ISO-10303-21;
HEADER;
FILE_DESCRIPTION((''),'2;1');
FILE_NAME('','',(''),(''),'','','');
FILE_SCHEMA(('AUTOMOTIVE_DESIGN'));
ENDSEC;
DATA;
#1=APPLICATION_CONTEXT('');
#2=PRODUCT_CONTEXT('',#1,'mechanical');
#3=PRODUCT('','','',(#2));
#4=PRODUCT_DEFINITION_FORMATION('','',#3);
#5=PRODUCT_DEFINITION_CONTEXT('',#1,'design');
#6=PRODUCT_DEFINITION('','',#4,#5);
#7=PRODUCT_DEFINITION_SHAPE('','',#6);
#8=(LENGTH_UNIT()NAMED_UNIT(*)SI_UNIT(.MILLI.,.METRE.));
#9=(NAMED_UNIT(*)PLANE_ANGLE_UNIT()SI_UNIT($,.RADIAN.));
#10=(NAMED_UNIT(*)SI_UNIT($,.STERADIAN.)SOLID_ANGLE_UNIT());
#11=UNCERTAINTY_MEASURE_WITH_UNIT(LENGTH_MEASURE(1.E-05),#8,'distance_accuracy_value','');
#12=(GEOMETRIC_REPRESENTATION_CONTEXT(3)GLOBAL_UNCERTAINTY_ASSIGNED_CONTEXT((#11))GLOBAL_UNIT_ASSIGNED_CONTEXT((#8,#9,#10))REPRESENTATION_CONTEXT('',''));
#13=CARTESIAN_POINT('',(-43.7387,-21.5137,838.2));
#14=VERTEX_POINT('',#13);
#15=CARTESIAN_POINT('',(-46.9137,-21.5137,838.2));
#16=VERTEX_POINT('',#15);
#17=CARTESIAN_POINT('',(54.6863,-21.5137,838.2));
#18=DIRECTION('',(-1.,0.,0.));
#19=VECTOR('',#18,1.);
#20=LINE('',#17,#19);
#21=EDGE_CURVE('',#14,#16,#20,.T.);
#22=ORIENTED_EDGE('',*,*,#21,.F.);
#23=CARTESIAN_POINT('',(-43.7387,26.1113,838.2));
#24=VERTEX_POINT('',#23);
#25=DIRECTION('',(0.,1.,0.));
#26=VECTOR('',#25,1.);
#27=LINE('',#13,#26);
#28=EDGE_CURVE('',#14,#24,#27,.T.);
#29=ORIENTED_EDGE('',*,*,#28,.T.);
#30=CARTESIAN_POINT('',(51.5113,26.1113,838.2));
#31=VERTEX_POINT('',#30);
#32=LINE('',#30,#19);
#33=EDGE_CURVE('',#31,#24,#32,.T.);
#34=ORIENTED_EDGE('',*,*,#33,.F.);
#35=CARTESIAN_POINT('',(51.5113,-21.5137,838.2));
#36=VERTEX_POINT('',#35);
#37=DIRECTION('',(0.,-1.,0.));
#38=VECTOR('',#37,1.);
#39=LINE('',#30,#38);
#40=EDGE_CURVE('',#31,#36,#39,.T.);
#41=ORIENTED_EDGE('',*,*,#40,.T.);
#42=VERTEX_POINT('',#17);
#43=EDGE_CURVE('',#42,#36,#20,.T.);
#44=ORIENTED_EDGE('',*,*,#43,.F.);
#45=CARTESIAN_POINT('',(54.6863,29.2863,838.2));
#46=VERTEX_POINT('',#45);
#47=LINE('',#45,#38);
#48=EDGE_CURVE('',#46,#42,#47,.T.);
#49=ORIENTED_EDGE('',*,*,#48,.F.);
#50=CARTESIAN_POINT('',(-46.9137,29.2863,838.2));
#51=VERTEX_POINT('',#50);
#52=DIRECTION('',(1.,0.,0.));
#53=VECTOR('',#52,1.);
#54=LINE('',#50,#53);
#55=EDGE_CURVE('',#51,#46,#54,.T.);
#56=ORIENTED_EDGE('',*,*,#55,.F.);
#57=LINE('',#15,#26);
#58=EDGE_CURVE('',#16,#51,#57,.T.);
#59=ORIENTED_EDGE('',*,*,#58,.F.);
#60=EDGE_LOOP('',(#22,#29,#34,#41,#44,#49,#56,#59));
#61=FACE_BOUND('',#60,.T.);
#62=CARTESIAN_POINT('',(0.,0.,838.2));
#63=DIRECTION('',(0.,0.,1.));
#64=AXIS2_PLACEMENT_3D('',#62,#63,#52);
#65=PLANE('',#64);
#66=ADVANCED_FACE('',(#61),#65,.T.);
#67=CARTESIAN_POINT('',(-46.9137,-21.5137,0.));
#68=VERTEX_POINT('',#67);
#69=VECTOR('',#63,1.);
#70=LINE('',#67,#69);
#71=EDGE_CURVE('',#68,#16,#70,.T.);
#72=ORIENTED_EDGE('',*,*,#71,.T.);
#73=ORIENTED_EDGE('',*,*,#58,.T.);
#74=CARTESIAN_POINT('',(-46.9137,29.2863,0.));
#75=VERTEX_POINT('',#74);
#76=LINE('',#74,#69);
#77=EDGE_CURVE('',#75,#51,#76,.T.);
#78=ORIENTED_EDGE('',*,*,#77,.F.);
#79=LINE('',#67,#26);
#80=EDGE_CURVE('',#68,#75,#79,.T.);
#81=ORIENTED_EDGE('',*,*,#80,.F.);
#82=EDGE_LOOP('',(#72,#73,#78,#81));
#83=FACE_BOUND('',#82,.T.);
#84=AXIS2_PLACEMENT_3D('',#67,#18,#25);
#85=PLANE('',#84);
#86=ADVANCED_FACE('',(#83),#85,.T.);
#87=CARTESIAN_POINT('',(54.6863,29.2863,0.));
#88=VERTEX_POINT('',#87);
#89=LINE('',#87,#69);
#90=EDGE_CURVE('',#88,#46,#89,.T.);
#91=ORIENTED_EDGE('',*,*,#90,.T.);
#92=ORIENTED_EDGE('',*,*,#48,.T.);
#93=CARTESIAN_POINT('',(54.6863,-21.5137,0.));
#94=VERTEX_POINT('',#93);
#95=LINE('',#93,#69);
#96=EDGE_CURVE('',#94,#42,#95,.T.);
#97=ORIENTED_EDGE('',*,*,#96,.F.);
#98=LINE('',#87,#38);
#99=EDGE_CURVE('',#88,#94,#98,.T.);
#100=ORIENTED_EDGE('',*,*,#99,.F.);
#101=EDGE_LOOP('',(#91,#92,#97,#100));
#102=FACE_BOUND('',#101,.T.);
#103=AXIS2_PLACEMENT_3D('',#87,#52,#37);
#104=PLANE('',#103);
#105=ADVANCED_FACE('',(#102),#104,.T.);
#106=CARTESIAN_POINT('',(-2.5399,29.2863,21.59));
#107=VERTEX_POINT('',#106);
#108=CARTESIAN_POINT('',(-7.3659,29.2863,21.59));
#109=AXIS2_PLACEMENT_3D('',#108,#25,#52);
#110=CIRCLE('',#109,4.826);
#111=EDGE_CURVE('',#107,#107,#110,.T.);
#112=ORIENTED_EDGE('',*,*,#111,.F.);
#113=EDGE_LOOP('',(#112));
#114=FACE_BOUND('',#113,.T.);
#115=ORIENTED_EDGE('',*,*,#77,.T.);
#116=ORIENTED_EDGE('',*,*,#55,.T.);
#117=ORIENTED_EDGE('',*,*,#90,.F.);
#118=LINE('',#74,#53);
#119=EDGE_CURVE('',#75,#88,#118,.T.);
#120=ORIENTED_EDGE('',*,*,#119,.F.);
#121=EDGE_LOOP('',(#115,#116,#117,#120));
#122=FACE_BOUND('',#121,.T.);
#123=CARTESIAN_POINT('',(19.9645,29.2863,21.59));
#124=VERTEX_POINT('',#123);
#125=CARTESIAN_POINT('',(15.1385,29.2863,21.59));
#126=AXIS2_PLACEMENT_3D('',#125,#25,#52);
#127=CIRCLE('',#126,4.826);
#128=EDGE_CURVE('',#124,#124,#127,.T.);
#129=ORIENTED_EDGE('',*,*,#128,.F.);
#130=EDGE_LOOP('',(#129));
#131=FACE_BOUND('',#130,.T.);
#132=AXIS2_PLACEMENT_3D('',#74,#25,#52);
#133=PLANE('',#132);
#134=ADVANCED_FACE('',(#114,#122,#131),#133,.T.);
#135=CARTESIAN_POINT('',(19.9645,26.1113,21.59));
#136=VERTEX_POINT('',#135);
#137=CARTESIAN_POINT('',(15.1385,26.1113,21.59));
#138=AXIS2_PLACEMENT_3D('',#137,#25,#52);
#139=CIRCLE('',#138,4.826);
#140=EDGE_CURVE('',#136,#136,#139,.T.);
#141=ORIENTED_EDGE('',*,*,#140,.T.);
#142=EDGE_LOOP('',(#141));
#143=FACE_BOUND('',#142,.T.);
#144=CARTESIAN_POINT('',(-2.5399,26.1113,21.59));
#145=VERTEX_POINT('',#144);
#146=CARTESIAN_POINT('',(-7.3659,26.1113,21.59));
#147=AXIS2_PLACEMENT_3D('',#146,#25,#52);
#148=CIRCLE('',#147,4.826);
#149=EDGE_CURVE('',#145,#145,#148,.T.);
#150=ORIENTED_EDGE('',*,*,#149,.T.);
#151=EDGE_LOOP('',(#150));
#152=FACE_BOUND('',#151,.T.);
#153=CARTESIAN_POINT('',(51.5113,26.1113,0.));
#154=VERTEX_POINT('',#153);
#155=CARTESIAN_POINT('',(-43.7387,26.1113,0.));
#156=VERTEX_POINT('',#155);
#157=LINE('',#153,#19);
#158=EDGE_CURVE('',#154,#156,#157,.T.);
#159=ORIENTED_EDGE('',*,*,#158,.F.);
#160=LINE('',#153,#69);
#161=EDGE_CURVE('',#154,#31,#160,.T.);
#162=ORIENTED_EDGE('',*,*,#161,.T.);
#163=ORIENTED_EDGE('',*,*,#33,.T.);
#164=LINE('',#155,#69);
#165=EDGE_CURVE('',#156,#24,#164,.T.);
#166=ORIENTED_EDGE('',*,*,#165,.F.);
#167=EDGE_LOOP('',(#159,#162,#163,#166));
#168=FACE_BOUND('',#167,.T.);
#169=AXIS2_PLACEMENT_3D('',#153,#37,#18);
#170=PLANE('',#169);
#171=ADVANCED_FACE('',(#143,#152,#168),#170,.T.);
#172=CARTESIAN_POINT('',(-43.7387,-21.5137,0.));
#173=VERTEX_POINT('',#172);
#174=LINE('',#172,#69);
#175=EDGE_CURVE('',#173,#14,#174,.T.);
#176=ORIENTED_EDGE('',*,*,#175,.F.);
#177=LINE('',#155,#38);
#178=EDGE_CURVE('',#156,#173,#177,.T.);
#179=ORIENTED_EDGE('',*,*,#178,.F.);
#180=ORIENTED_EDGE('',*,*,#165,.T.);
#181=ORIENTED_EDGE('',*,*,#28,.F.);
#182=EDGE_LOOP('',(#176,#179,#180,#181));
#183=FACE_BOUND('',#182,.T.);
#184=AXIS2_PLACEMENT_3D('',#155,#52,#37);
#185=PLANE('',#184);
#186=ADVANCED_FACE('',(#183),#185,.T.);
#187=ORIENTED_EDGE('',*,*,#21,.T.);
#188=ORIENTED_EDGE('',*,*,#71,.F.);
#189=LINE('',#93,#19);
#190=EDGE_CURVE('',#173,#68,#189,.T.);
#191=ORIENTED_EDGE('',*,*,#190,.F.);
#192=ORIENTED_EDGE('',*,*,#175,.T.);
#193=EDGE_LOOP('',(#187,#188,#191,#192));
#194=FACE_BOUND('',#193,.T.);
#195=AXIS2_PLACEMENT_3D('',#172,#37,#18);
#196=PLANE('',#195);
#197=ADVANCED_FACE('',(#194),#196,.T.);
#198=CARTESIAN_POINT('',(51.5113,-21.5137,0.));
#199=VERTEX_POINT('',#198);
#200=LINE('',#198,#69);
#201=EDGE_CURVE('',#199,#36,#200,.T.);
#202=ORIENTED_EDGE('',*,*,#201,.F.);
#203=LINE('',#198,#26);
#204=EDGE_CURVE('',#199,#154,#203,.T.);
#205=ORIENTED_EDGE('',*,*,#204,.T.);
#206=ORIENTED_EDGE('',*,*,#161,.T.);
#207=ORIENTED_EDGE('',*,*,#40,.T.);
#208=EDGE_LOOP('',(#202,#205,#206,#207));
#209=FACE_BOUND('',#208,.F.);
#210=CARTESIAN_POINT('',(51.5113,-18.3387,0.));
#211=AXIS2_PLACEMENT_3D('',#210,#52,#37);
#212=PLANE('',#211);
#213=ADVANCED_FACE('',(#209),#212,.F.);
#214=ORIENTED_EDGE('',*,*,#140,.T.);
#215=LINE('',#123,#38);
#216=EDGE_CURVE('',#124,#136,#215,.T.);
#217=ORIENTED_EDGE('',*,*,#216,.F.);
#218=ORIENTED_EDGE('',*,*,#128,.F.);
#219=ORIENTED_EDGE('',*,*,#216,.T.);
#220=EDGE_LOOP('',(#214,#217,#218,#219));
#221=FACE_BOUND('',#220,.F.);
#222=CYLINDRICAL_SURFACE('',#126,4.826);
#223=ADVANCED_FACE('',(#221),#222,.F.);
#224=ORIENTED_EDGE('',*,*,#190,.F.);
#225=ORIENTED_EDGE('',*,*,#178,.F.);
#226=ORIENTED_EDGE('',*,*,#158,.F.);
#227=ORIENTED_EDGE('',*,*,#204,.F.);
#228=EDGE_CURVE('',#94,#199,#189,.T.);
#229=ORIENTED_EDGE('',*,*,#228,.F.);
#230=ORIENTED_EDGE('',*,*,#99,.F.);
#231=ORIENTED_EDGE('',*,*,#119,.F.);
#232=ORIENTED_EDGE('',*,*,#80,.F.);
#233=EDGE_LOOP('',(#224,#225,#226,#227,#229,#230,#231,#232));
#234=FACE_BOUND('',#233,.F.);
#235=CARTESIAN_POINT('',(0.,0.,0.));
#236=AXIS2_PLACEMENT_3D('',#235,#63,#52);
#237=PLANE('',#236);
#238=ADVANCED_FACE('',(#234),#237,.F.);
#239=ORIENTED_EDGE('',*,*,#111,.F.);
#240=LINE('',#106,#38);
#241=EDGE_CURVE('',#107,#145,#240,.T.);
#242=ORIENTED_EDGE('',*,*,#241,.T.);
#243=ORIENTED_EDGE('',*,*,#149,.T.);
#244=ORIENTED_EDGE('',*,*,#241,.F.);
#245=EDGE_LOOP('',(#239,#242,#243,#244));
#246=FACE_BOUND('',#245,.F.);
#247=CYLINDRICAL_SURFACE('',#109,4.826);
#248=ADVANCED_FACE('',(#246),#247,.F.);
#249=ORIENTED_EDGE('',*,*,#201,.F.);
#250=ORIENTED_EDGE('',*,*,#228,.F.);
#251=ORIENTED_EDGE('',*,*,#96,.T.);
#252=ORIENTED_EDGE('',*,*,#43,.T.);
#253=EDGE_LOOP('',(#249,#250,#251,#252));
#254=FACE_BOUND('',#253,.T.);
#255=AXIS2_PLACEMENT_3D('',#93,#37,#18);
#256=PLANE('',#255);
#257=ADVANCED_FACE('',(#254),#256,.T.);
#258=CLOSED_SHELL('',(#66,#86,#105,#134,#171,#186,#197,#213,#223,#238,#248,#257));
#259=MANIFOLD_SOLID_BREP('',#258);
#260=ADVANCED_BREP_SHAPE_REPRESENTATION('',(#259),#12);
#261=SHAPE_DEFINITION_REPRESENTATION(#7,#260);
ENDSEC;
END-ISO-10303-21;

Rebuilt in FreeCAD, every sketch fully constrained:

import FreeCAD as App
import Part
import Sketcher

V = App.Vector
Q = App.Units.Quantity

doc = App.newDocument("Part")
body = doc.addObject("PartDesign::Body", "Body")

sketch1 = doc.addObject("Sketcher::SketchObject", "Sketch")
body.addObject(sketch1)
sketch1.AttachmentSupport = (doc.XY_Plane, [""])
sketch1.MapMode = "FlatFace"
sketch1.addGeometry(Part.LineSegment(V(54.7, 29.3, 0), V(-46.9, 29.3, 0)), False)
sketch1.addGeometry(Part.LineSegment(V(-46.9, 29.3, 0), V(-46.9, -21.5, 0)), False)
sketch1.addGeometry(Part.LineSegment(V(-46.9, -21.5, 0), V(-43.7, -21.5, 0)), False)
sketch1.addGeometry(Part.LineSegment(V(-43.7, -21.5, 0), V(-43.7, 26.1, 0)), False)
sketch1.addGeometry(Part.LineSegment(V(-43.7, 26.1, 0), V(51.5, 26.1, 0)), False)
sketch1.addGeometry(Part.LineSegment(V(51.5, 26.1, 0), V(51.5, -21.5, 0)), False)
sketch1.addGeometry(Part.LineSegment(V(51.5, -21.5, 0), V(54.7, -21.5, 0)), False)
sketch1.addGeometry(Part.LineSegment(V(54.7, -21.5, 0), V(54.7, 29.3, 0)), False)
sketch1.addConstraint(Sketcher.Constraint("Coincident", 0, 2, 1, 1))
sketch1.addConstraint(Sketcher.Constraint("Coincident", 1, 2, 2, 1))
sketch1.addConstraint(Sketcher.Constraint("Coincident", 2, 2, 3, 1))
sketch1.addConstraint(Sketcher.Constraint("Coincident", 3, 2, 4, 1))
sketch1.addConstraint(Sketcher.Constraint("Coincident", 4, 2, 5, 1))
sketch1.addConstraint(Sketcher.Constraint("Coincident", 5, 2, 6, 1))
sketch1.addConstraint(Sketcher.Constraint("Coincident", 6, 2, 7, 1))
sketch1.addConstraint(Sketcher.Constraint("Coincident", 7, 2, 0, 1))
sketch1.addConstraint(Sketcher.Constraint("Horizontal", 0))
sketch1.addConstraint(Sketcher.Constraint("Vertical", 1))
sketch1.addConstraint(Sketcher.Constraint("Horizontal", 2))
sketch1.addConstraint(Sketcher.Constraint("Vertical", 3))
sketch1.addConstraint(Sketcher.Constraint("Horizontal", 4))
sketch1.addConstraint(Sketcher.Constraint("Vertical", 5))
sketch1.addConstraint(Sketcher.Constraint("Horizontal", 6))
sketch1.addConstraint(Sketcher.Constraint("Vertical", 7))
sketch1.addConstraint(Sketcher.Constraint("Horizontal", 2, 2, 5, 2))
sketch1.addConstraint(Sketcher.Constraint("Equal", 2, 6))
sketch1.addConstraint(Sketcher.Constraint("DistanceX", 0, 2, 0, 1, Q("4 in")))
sketch1.addConstraint(Sketcher.Constraint("DistanceY", 1, 2, 1, 1, Q("2 in")))
sketch1.addConstraint(Sketcher.Constraint("DistanceX", 2, 1, 2, 2, Q("0.125 in")))
sketch1.addConstraint(Sketcher.Constraint("DistanceY", 3, 2, 0, 2, Q("0.125 in")))
sketch1.addConstraint(Sketcher.Constraint("DistanceX", 0, 2, -1, 1, Q("1.847 in")))
sketch1.addConstraint(Sketcher.Constraint("DistanceY", -1, 1, 0, 2, Q("1.153 in")))
pad1 = doc.addObject("PartDesign::Pad", "Pad")
body.addObject(pad1)
pad1.Profile = sketch1
pad1.Length = Q("33 in")

sketch2 = doc.addObject("Sketcher::SketchObject", "Sketch001")
body.addObject(sketch2)
sketch2.AttachmentSupport = (doc.XZ_Plane, [""])
sketch2.MapMode = "FlatFace"
sketch2.AttachmentOffset = App.Placement(V(0, 0, -1.1530039 * 25.4), App.Rotation())
sketch2.addGeometry(Part.Circle(V(15.1, 21.6, 0), V(0, 0, 1), 4.8), False)
sketch2.addGeometry(Part.Circle(V(-7.4, 21.6, 0), V(0, 0, 1), 4.8), False)
sketch2.addConstraint(Sketcher.Constraint("Equal", 0, 1))
sketch2.addConstraint(Sketcher.Constraint("Horizontal", 0, 3, 1, 3))
sketch2.addConstraint(Sketcher.Constraint("Diameter", 0, Q("0.38 in")))
sketch2.addConstraint(Sketcher.Constraint("DistanceY", -1, 1, 0, 3, Q("0.85 in")))
sketch2.addConstraint(Sketcher.Constraint("DistanceX", 1, 3, 0, 3, Q("0.886 in")))
sketch2.addConstraint(Sketcher.Constraint("DistanceX", 1, 3, -1, 1, Q("0.29 in")))
pocket1 = doc.addObject("PartDesign::Pocket", "Pocket")
body.addObject(pocket1)
pocket1.Profile = sketch2
pocket1.Type = "ThroughAll"
pocket1.Reversed = True

doc.recompute()
